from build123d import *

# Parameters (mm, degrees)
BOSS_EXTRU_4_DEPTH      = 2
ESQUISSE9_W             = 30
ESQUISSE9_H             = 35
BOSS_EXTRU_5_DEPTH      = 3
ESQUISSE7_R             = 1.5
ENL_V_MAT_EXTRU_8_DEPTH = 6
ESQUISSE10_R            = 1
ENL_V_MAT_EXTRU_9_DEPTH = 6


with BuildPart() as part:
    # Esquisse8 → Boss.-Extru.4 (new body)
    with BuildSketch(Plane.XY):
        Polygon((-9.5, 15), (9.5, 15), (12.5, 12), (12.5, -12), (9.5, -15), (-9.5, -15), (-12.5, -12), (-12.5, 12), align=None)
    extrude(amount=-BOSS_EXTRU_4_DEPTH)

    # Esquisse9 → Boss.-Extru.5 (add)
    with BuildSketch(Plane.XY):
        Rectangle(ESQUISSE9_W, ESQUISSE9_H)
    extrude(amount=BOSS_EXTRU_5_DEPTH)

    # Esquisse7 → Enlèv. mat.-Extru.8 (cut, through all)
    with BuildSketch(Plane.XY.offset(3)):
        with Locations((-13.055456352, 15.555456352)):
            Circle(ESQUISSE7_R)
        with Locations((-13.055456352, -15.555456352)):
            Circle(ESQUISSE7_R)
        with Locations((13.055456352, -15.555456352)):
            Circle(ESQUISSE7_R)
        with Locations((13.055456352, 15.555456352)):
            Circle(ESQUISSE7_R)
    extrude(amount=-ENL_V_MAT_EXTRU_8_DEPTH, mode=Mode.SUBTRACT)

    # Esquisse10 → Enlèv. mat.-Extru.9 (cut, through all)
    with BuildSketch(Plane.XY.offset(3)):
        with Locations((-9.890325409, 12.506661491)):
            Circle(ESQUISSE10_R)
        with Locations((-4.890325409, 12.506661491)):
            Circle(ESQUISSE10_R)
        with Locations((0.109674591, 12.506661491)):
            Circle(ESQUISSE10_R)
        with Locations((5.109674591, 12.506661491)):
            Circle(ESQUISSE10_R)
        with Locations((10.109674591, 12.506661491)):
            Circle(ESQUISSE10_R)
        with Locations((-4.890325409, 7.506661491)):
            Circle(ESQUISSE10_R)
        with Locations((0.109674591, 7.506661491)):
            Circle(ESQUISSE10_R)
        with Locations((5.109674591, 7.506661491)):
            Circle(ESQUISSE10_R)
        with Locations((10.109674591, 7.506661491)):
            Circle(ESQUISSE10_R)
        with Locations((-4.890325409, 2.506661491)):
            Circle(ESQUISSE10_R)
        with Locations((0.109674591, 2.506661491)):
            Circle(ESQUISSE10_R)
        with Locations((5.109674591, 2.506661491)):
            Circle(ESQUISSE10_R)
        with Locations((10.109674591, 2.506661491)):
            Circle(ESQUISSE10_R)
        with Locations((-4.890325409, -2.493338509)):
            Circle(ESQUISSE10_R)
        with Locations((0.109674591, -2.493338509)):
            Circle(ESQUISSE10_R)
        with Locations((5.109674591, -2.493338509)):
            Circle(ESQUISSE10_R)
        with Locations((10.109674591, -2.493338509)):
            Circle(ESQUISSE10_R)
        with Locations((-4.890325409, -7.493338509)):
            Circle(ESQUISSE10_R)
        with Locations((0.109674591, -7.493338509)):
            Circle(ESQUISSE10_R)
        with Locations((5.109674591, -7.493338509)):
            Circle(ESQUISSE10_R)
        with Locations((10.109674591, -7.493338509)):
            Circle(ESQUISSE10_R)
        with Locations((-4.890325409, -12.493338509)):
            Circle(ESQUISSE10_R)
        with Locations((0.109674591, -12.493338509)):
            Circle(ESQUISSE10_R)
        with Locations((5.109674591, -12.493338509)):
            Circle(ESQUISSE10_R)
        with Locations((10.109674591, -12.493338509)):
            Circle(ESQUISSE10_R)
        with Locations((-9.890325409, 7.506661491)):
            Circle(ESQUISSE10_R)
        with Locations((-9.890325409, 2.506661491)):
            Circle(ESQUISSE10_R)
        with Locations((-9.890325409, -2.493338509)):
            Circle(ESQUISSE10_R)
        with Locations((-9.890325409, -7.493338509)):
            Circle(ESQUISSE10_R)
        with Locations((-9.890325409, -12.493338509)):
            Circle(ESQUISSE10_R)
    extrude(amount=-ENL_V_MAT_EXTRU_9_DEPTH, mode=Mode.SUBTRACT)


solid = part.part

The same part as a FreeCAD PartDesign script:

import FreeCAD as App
import Part
import Sketcher

doc = App.newDocument("Part")
body = doc.addObject("PartDesign::Body", "Body")

# Sketch on XY plane
sketch1 = body.newObject("Sketcher::SketchObject", "Sketch")
sketch1.AttachmentSupport = (doc.getObject("XY_Plane"), [""])
sketch1.MapMode = "FlatFace"
sketch1.addGeometry([
    Part.LineSegment(App.Vector(9.5, 15, 0), App.Vector(-9.5, 15, 0)),  # 0
    Part.LineSegment(App.Vector(-9.5, 15, 0), App.Vector(-12.5, 12, 0)),  # 1
    Part.LineSegment(App.Vector(-12.5, 12, 0), App.Vector(-12.5, -12, 0)),  # 2
    Part.LineSegment(App.Vector(-12.5, -12, 0), App.Vector(-9.5, -15, 0)),  # 3
    Part.LineSegment(App.Vector(-9.5, -15, 0), App.Vector(9.5, -15, 0)),  # 4
    Part.LineSegment(App.Vector(9.5, -15, 0), App.Vector(12.5, -12, 0)),  # 5
    Part.LineSegment(App.Vector(12.5, -12, 0), App.Vector(12.5, 12, 0)),  # 6
    Part.LineSegment(App.Vector(12.5, 12, 0), App.Vector(9.5, 15, 0)),  # 7
], False)
sketch1.addConstraint([
    Sketcher.Constraint("Coincident", 0, 2, 1, 1),
    Sketcher.Constraint("Coincident", 1, 2, 2, 1),
    Sketcher.Constraint("Coincident", 2, 2, 3, 1),
    Sketcher.Constraint("Coincident", 3, 2, 4, 1),
    Sketcher.Constraint("Coincident", 4, 2, 5, 1),
    Sketcher.Constraint("Coincident", 5, 2, 6, 1),
    Sketcher.Constraint("Coincident", 6, 2, 7, 1),
    Sketcher.Constraint("Coincident", 7, 2, 0, 1),
    Sketcher.Constraint("Horizontal", 0),
    Sketcher.Constraint("Vertical", 2),
    Sketcher.Constraint("Horizontal", 4),
    Sketcher.Constraint("Vertical", 6),
    Sketcher.Constraint("Symmetric", 0, 2, 4, 2, -1, 1),
    Sketcher.Constraint("Symmetric", 1, 2, 5, 2, -1, 1),
    Sketcher.Constraint("Perpendicular", 1, 3),
    Sketcher.Constraint("Perpendicular", 5, 7),
    Sketcher.Constraint("Horizontal", 2, 2, 5, 2),
    Sketcher.Constraint("Horizontal", 1, 2, 6, 2),
    Sketcher.Constraint("Vertical", 0, 2, 3, 2),
    Sketcher.Constraint("DistanceX", 0, 2, 0, 1, 19.0),
    Sketcher.Constraint("DistanceY", 2, 2, 2, 1, 24.0),
    Sketcher.Constraint("DistanceY", -1, 1, 0, 2, 15.0),
])
pad1 = body.newObject("PartDesign::Pad", "Pad")
pad1.Profile = sketch1
pad1.Length = 2
pad1.Reversed = True

# Sketch on XY plane
sketch2 = body.newObject("Sketcher::SketchObject", "Sketch001")
sketch2.AttachmentSupport = (doc.getObject("XY_Plane"), [""])
sketch2.MapMode = "FlatFace"
sketch2.addGeometry([
    Part.LineSegment(App.Vector(-15, 17.5, 0), App.Vector(-15, -17.5, 0)),
    Part.LineSegment(App.Vector(-15, -17.5, 0), App.Vector(15, -17.5, 0)),
    Part.LineSegment(App.Vector(15, -17.5, 0), App.Vector(15, 17.5, 0)),
    Part.LineSegment(App.Vector(15, 17.5, 0), App.Vector(-15, 17.5, 0)),
], False)
sketch2.addConstraint([
    Sketcher.Constraint("Coincident", 0, 2, 1, 1),
    Sketcher.Constraint("Coincident", 1, 2, 2, 1),
    Sketcher.Constraint("Coincident", 2, 2, 3, 1),
    Sketcher.Constraint("Coincident", 3, 2, 0, 1),
    Sketcher.Constraint("Vertical", 0),
    Sketcher.Constraint("Horizontal", 1),
    Sketcher.Constraint("Vertical", 2),
    Sketcher.Constraint("Horizontal", 3),
    Sketcher.Constraint("Symmetric", 0, 2, 2, 2, -1, 1),
    Sketcher.Constraint("DistanceX", 1, 1, 1, 2, 30.0),
    Sketcher.Constraint("DistanceY", 0, 2, 0, 1, 35.0),
])
pad2 = body.newObject("PartDesign::Pad", "Pad001")
pad2.Profile = sketch2
pad2.Length = 3

# Sketch on XY plane
sketch3 = body.newObject("Sketcher::SketchObject", "Sketch002")
sketch3.AttachmentSupport = (doc.getObject("XY_Plane"), [""])
sketch3.MapMode = "FlatFace"
sketch3.AttachmentOffset = App.Placement(App.Vector(0, 0, 3), App.Rotation())
sketch3.addGeometry([
    Part.Circle(App.Vector(-13.055456, 15.555456, 0), App.Vector(0, 0, 1), 1.5),
    Part.Circle(App.Vector(-13.055456, -15.555456, 0), App.Vector(0, 0, 1), 1.5),
    Part.Circle(App.Vector(13.055456, -15.555456, 0), App.Vector(0, 0, 1), 1.5),
    Part.Circle(App.Vector(13.055456, 15.555456, 0), App.Vector(0, 0, 1), 1.5),
], False)
sketch3.addConstraint([
    Sketcher.Constraint("Equal", 0, 1),
    Sketcher.Constraint("Equal", 1, 2),
    Sketcher.Constraint("Equal", 2, 3),
    Sketcher.Constraint("Symmetric", 0, 3, 2, 3, -1, 1),
    Sketcher.Constraint("Symmetric", 1, 3, 3, 3, -1, 1),
    Sketcher.Constraint("Symmetric", 1, 3, 2, 3, -2),
    Sketcher.Constraint("Diameter", 0, 3.0),
    Sketcher.Constraint("DistanceX", 0, 3, -1, 1, 13.055456),
    Sketcher.Constraint("DistanceY", -1, 1, 0, 3, 15.555456),
])
pocket1 = body.newObject("PartDesign::Pocket", "Pocket")
pocket1.Profile = sketch3
pocket1.Type = "ThroughAll"

# Sketch on XY plane
sketch4 = body.newObject("Sketcher::SketchObject", "Sketch003")
sketch4.AttachmentSupport = (doc.getObject("XY_Plane"), [""])
sketch4.MapMode = "FlatFace"
sketch4.AttachmentOffset = App.Placement(App.Vector(0, 0, 3), App.Rotation())
sketch4.addGeometry([
    Part.Circle(App.Vector(-9.890325, 12.506661, 0), App.Vector(0, 0, 1), 1),  # 0
    Part.Circle(App.Vector(-4.890325, 12.506661, 0), App.Vector(0, 0, 1), 1),  # 1
    Part.Circle(App.Vector(0.109675, 12.506661, 0), App.Vector(0, 0, 1), 1),  # 2
    Part.Circle(App.Vector(5.109675, 12.506661, 0), App.Vector(0, 0, 1), 1),  # 3
    Part.Circle(App.Vector(10.109675, 12.506661, 0), App.Vector(0, 0, 1), 1),  # 4
    Part.Circle(App.Vector(-4.890325, 7.506661, 0), App.Vector(0, 0, 1), 1),  # 5
    Part.Circle(App.Vector(0.109675, 7.506661, 0), App.Vector(0, 0, 1), 1),  # 6
    Part.Circle(App.Vector(5.109675, 7.506661, 0), App.Vector(0, 0, 1), 1),  # 7
    Part.Circle(App.Vector(10.109675, 7.506661, 0), App.Vector(0, 0, 1), 1),  # 8
    Part.Circle(App.Vector(-4.890325, 2.506661, 0), App.Vector(0, 0, 1), 1),  # 9
    Part.Circle(App.Vector(0.109675, 2.506661, 0), App.Vector(0, 0, 1), 1),  # 10
    Part.Circle(App.Vector(5.109675, 2.506661, 0), App.Vector(0, 0, 1), 1),  # 11
    Part.Circle(App.Vector(10.109675, 2.506661, 0), App.Vector(0, 0, 1), 1),  # 12
    Part.Circle(App.Vector(-4.890325, -2.493339, 0), App.Vector(0, 0, 1), 1),  # 13
    Part.Circle(App.Vector(0.109675, -2.493339, 0), App.Vector(0, 0, 1), 1),  # 14
    Part.Circle(App.Vector(5.109675, -2.493339, 0), App.Vector(0, 0, 1), 1),  # 15
    Part.Circle(App.Vector(10.109675, -2.493339, 0), App.Vector(0, 0, 1), 1),  # 16
    Part.Circle(App.Vector(-4.890325, -7.493339, 0), App.Vector(0, 0, 1), 1),  # 17
    Part.Circle(App.Vector(0.109675, -7.493339, 0), App.Vector(0, 0, 1), 1),  # 18
    Part.Circle(App.Vector(5.109675, -7.493339, 0), App.Vector(0, 0, 1), 1),  # 19
    Part.Circle(App.Vector(10.109675, -7.493339, 0), App.Vector(0, 0, 1), 1),  # 20
    Part.Circle(App.Vector(-4.890325, -12.493339, 0), App.Vector(0, 0, 1), 1),  # 21
    Part.Circle(App.Vector(0.109675, -12.493339, 0), App.Vector(0, 0, 1), 1),  # 22
    Part.Circle(App.Vector(5.109675, -12.493339, 0), App.Vector(0, 0, 1), 1),  # 23
    Part.Circle(App.Vector(10.109675, -12.493339, 0), App.Vector(0, 0, 1), 1),  # 24
    Part.Circle(App.Vector(-9.890325, 7.506661, 0), App.Vector(0, 0, 1), 1),  # 25
    Part.Circle(App.Vector(-9.890325, 2.506661, 0), App.Vector(0, 0, 1), 1),  # 26
    Part.Circle(App.Vector(-9.890325, -2.493339, 0), App.Vector(0, 0, 1), 1),  # 27
    Part.Circle(App.Vector(-9.890325, -7.493339, 0), App.Vector(0, 0, 1), 1),  # 28
    Part.Circle(App.Vector(-9.890325, -12.493339, 0), App.Vector(0, 0, 1), 1),  # 29
], False)
sketch4.addConstraint([
    Sketcher.Constraint("Equal", 0, 1),
    Sketcher.Constraint("Equal", 1, 2),
    Sketcher.Constraint("Equal", 2, 3),
    Sketcher.Constraint("Equal", 3, 4),
    Sketcher.Constraint("Equal", 4, 5),
    Sketcher.Constraint("Equal", 5, 6),
    Sketcher.Constraint("Equal", 6, 7),
    Sketcher.Constraint("Equal", 7, 8),
    Sketcher.Constraint("Equal", 8, 9),
    Sketcher.Constraint("Equal", 9, 10),
    Sketcher.Constraint("Equal", 10, 11),
    Sketcher.Constraint("Equal", 11, 12),
    Sketcher.Constraint("Equal", 12, 13),
    Sketcher.Constraint("Equal", 13, 14),
    Sketcher.Constraint("Equal", 14, 15),
    Sketcher.Constraint("Equal", 15, 16),
    Sketcher.Constraint("Equal", 16, 17),
    Sketcher.Constraint("Equal", 17, 18),
    Sketcher.Constraint("Equal", 18, 19),
    Sketcher.Constraint("Equal", 19, 20),
    Sketcher.Constraint("Equal", 20, 21),
    Sketcher.Constraint("Equal", 21, 22),
    Sketcher.Constraint("Equal", 22, 23),
    Sketcher.Constraint("Equal", 23, 24),
    Sketcher.Constraint("Equal", 24, 25),
    Sketcher.Constraint("Equal", 25, 26),
    Sketcher.Constraint("Equal", 26, 27),
    Sketcher.Constraint("Equal", 27, 28),
    Sketcher.Constraint("Equal", 28, 29),
    Sketcher.Constraint("Horizontal", 0, 3, 1, 3),
    Sketcher.Constraint("Horizontal", 1, 3, 2, 3),
    Sketcher.Constraint("Horizontal", 2, 3, 3, 3),
    Sketcher.Constraint("Horizontal", 3, 3, 4, 3),
    Sketcher.Constraint("Horizontal", 5, 3, 6, 3),
    Sketcher.Constraint("Horizontal", 6, 3, 7, 3),
    Sketcher.Constraint("Horizontal", 7, 3, 8, 3),
    Sketcher.Constraint("Horizontal", 9, 3, 10, 3),
    Sketcher.Constraint("Horizontal", 10, 3, 11, 3),
    Sketcher.Constraint("Horizontal", 11, 3, 12, 3),
    Sketcher.Constraint("Horizontal", 13, 3, 14, 3),
    Sketcher.Constraint("Horizontal", 14, 3, 15, 3),
    Sketcher.Constraint("Horizontal", 15, 3, 16, 3),
    Sketcher.Constraint("Horizontal", 17, 3, 18, 3),
    Sketcher.Constraint("Horizontal", 18, 3, 19, 3),
    Sketcher.Constraint("Horizontal", 19, 3, 20, 3),
    Sketcher.Constraint("Horizontal", 21, 3, 22, 3),
    Sketcher.Constraint("Horizontal", 22, 3, 23, 3),
    Sketcher.Constraint("Horizontal", 23, 3, 24, 3),
    Sketcher.Constraint("Horizontal", 8, 3, 25, 3),
    Sketcher.Constraint("Horizontal", 12, 3, 26, 3),
    Sketcher.Constraint("Horizontal", 16, 3, 27, 3),
    Sketcher.Constraint("Horizontal", 20, 3, 28, 3),
    Sketcher.Constraint("Horizontal", 24, 3, 29, 3),
    Sketcher.Constraint("Vertical", 1, 3, 5, 3),
    Sketcher.Constraint("Vertical", 2, 3, 6, 3),
    Sketcher.Constraint("Vertical", 3, 3, 7, 3),
    Sketcher.Constraint("Vertical", 4, 3, 8, 3),
    Sketcher.Constraint("Vertical", 5, 3, 9, 3),
    Sketcher.Constraint("Vertical", 6, 3, 10, 3),
    Sketcher.Constraint("Vertical", 7, 3, 11, 3),
    Sketcher.Constraint("Vertical", 8, 3, 12, 3),
    Sketcher.Constraint("Vertical", 9, 3, 13, 3),
    Sketcher.Constraint("Vertical", 10, 3, 14, 3),
    Sketcher.Constraint("Vertical", 11, 3, 15, 3),
    Sketcher.Constraint("Vertical", 12, 3, 16, 3),
    Sketcher.Constraint("Vertical", 13, 3, 17, 3),
    Sketcher.Constraint("Vertical", 14, 3, 18, 3),
    Sketcher.Constraint("Vertical", 15, 3, 19, 3),
    Sketcher.Constraint("Vertical", 16, 3, 20, 3),
    Sketcher.Constraint("Vertical", 17, 3, 21, 3),
    Sketcher.Constraint("Vertical", 18, 3, 22, 3),
    Sketcher.Constraint("Vertical", 19, 3, 23, 3),
    Sketcher.Constraint("Vertical", 20, 3, 24, 3),
    Sketcher.Constraint("Vertical", 0, 3, 25, 3),
    Sketcher.Constraint("Vertical", 25, 3, 26, 3),
    Sketcher.Constraint("Vertical", 26, 3, 27, 3),
    Sketcher.Constraint("Vertical", 27, 3, 28, 3),
    Sketcher.Constraint("Vertical", 28, 3, 29, 3),
    Sketcher.Constraint("Diameter", 0, 2.0),
    Sketcher.Constraint("DistanceX", 0, 3, 1, 3, 5.0),
    Sketcher.Constraint("DistanceX", 1, 3, 2, 3, 5.0),
    Sketcher.Constraint("DistanceX", 2, 3, 3, 3, 5.0),
    Sketcher.Constraint("DistanceX", 3, 3, 4, 3, 5.0),
    Sketcher.Constraint("DistanceY", 5, 3, 1, 3, 5.0),
    Sketcher.Constraint("DistanceY", 9, 3, 5, 3, 5.0),
    Sketcher.Constraint("DistanceY", 13, 3, 9, 3, 5.0),
    Sketcher.Constraint("DistanceY", 17, 3, 13, 3, 5.0),
    Sketcher.Constraint("DistanceY", 21, 3, 17, 3, 5.0),
    Sketcher.Constraint("DistanceY", -1, 1, 0, 3, 12.506661),
    Sketcher.Constraint("DistanceX", 0, 3, -1, 1, 9.890325),
])
pocket2 = body.newObject("PartDesign::Pocket", "Pocket001")
pocket2.Profile = sketch4
pocket2.Type = "ThroughAll"

doc.recompute()
